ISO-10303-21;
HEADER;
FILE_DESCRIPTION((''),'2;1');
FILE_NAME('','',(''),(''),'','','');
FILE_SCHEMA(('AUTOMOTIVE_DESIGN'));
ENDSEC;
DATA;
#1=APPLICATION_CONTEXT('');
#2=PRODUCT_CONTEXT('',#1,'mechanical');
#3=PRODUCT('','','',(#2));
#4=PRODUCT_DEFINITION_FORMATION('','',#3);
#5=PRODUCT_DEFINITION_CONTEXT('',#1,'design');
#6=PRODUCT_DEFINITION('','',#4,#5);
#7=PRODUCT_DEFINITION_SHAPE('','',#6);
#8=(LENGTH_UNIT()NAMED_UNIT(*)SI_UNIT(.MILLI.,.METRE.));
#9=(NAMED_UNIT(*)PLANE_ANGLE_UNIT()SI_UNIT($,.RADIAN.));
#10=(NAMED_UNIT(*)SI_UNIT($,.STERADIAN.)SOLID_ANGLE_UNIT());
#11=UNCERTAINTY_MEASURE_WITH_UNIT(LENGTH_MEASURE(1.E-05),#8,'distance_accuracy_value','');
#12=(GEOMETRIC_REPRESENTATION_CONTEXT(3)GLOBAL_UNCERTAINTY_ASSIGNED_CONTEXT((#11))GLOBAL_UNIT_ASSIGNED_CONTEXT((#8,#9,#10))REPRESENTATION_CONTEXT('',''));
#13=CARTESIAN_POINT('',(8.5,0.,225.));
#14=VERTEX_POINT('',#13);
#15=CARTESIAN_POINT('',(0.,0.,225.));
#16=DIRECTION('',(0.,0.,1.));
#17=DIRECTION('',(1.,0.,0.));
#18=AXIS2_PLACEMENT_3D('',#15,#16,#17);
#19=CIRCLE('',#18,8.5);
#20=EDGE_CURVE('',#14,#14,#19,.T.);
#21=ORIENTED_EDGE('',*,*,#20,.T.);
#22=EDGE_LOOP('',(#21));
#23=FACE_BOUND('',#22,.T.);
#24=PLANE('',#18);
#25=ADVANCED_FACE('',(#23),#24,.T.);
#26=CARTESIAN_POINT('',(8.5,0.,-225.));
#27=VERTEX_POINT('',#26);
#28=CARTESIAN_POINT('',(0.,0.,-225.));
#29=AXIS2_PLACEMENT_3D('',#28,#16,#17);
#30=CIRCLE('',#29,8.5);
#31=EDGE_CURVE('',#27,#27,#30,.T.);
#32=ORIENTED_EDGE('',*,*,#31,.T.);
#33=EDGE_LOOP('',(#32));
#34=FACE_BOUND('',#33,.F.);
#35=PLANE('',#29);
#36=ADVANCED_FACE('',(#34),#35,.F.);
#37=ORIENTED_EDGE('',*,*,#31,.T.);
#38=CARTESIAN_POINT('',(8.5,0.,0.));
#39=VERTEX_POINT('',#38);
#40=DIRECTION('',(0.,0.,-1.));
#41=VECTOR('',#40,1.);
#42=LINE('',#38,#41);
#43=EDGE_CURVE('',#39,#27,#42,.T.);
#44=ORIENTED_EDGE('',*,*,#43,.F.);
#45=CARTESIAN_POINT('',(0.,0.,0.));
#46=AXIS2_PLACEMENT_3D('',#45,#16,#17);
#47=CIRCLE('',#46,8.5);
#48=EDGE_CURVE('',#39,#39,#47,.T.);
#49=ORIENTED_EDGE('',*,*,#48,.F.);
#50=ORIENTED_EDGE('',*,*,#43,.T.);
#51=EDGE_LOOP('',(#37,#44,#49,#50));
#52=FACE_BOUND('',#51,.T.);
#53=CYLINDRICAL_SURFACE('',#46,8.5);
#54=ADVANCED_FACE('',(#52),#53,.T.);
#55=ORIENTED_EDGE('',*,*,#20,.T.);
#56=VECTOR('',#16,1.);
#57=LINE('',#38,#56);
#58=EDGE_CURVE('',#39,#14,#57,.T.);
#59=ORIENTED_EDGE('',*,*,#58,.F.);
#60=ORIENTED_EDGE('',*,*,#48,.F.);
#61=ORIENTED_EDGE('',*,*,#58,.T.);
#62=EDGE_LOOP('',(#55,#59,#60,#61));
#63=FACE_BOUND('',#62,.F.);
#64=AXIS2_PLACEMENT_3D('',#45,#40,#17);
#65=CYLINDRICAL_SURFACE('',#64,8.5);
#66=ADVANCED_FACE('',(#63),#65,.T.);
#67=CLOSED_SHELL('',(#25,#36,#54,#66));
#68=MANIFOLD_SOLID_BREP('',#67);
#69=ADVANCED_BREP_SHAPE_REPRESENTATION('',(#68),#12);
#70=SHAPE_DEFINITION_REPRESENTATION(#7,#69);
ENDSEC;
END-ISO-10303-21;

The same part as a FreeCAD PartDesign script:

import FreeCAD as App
import Part
import Sketcher

V = App.Vector
Q = App.Units.Quantity

doc = App.newDocument("Part")
params = doc.addObject("Spreadsheet::Sheet", "Params")
for row, (alias, value) in enumerate([
    ("sketch1_diameter", "17 mm"),
    ("pad1_length", "450 mm"),
], start=1):
    params.set(f"A{row}", alias)
    params.set(f"B{row}", "=" + value)
    params.setAlias(f"B{row}", alias)

body = doc.addObject("PartDesign::Body", "Body")

# Sketch on XY plane
sketch1 = body.newObject("Sketcher::SketchObject", "Sketch")
sketch1.AttachmentSupport = (doc.getObject("XY_Plane"), [""])
sketch1.MapMode = "FlatFace"
sketch1.addGeometry(Part.Circle(V(0, 0, 0), V(0, 0, 1), 8), False)
sketch1.addConstraint(Sketcher.Constraint("Coincident", 0, 3, -1, 1))
sketch1.addConstraint(Sketcher.Constraint("Diameter", 0, Q("17 mm")))
sketch1.setExpression("Constraints[1]", "Params.sketch1_diameter")
pad1 = body.newObject("PartDesign::Pad", "Pad")
pad1.Profile = sketch1
pad1.setExpression("Length", "Params.pad1_length")
pad1.Midplane = True

doc.recompute()
